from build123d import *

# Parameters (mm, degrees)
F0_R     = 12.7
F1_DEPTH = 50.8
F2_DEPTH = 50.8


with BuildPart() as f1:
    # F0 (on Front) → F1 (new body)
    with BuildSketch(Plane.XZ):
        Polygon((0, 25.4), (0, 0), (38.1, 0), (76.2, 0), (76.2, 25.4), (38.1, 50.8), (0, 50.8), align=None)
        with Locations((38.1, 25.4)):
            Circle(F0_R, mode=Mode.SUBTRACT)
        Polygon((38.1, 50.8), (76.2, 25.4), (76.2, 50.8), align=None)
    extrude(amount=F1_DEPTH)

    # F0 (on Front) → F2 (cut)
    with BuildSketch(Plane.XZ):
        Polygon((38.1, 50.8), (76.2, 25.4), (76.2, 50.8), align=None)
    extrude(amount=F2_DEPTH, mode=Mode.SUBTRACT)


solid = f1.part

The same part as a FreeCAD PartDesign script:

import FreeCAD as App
import Part
import Sketcher

V = App.Vector
Q = App.Units.Quantity


def add_polygon(sketch, points):
    """Adds a closed chain of lines whose ends are joined by coincident constraints."""
    first, n = sketch.GeometryCount, len(points)
    for a, b in zip(points, points[1:] + points[:1]):
        sketch.addGeometry(Part.LineSegment(App.Vector(*a, 0), App.Vector(*b, 0)), False)
    for i in range(n):
        sketch.addConstraint(Sketcher.Constraint("Coincident", first + i, 2, first + (i + 1) % n, 1))

doc = App.newDocument("Part")
body = doc.addObject("PartDesign::Body", "Body")

# Sketch on XZ plane
sketch1 = doc.addObject("Sketcher::SketchObject", "Sketch")
body.addObject(sketch1)
sketch1.AttachmentSupport = (doc.XZ_Plane, [""])
sketch1.MapMode = "FlatFace"
add_polygon(sketch1, [(0, 0), (76, 0), (76, 51), (0, 51)])  # lines 0-3
sketch1.addGeometry(Part.Circle(V(38, 25, 0), V(0, 0, 1), 13), False)  # 4
sketch1.addConstraint(Sketcher.Constraint("Horizontal", 0))
sketch1.addConstraint(Sketcher.Constraint("Vertical", 1))
sketch1.addConstraint(Sketcher.Constraint("Horizontal", 2))
sketch1.addConstraint(Sketcher.Constraint("Vertical", 3))
sketch1.addConstraint(Sketcher.Constraint("Coincident", 3, 2, -1, 1))
sketch1.addConstraint(Sketcher.Constraint("Diameter", 4, Q("1 in")))
sketch1.addConstraint(Sketcher.Constraint("DistanceX", 0, 1, 0, 2, Q("3 in")))
sketch1.addConstraint(Sketcher.Constraint("DistanceY", 1, 1, 1, 2, Q("2 in")))
sketch1.addConstraint(Sketcher.Constraint("DistanceY", -1, 1, 4, 3, Q("1 in")))
sketch1.addConstraint(Sketcher.Constraint("DistanceX", -1, 1, 4, 3, Q("1.5 in")))
pad1 = doc.addObject("PartDesign::Pad", "Pad")
body.addObject(pad1)
pad1.Profile = sketch1
pad1.Length = Q("2 in")

# Sketch on XZ plane
sketch2 = doc.addObject("Sketcher::SketchObject", "Sketch001")
body.addObject(sketch2)
sketch2.AttachmentSupport = (doc.XZ_Plane, [""])
sketch2.MapMode = "FlatFace"
add_polygon(sketch2, [(38, 51), (76, 25), (76, 51)])  # lines 0-2
sketch2.addConstraint(Sketcher.Constraint("Vertical", 1))
sketch2.addConstraint(Sketcher.Constraint("Horizontal", 2))
sketch2.addConstraint(Sketcher.Constraint("DistanceY", 1, 1, 1, 2, Q("1 in")))
sketch2.addConstraint(Sketcher.Constraint("DistanceX", 2, 2, 2, 1, Q("1.5 in")))
sketch2.addConstraint(Sketcher.Constraint("DistanceX", -1, 1, 0, 2, Q("3 in")))
sketch2.addConstraint(Sketcher.Constraint("DistanceY", -1, 1, 0, 2, Q("1 in")))
pocket1 = doc.addObject("PartDesign::Pocket", "Pocket")
body.addObject(pocket1)
pocket1.Profile = sketch2
pocket1.Length = Q("2 in")
pocket1.Reversed = True

doc.recompute()
